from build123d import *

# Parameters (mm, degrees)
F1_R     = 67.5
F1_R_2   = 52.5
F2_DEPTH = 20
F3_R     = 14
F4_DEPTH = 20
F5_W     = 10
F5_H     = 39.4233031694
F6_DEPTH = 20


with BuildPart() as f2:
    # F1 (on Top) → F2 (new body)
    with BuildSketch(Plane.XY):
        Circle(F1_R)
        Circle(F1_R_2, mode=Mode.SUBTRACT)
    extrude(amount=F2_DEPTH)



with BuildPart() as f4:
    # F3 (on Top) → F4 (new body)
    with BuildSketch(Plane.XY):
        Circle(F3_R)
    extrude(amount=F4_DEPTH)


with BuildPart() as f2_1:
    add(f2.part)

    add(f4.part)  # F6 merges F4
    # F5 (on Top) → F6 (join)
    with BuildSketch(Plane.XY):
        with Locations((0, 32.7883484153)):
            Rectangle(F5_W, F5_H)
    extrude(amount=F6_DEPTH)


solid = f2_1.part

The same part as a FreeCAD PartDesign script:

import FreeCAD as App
import Part
import Sketcher
from FreeCAD import Vector


def add_polygon(sketch, points):
    """Adds a closed chain of lines whose ends are joined by coincident constraints."""
    first, n = sketch.GeometryCount, len(points)
    for a, b in zip(points, points[1:] + points[:1]):
        sketch.addGeometry(Part.LineSegment(App.Vector(*a, 0), App.Vector(*b, 0)), False)
    for i in range(n):
        sketch.addConstraint(Sketcher.Constraint("Coincident", first + i, 2, first + (i + 1) % n, 1))

doc = App.newDocument("Part")
body = doc.addObject("PartDesign::Body", "Body")

sketch1 = body.newObject("Sketcher::SketchObject", "Sketch")
sketch1.AttachmentSupport = (doc.getObject("XY_Plane"), [""])
sketch1.MapMode = "FlatFace"
sketch1.addGeometry([
    Part.Circle(Vector(0, 0, 0), Vector(0, 0, 1), 68),
    Part.Circle(Vector(0, 0, 0), Vector(0, 0, 1), 52),
], False)
sketch1.addConstraint([
    Sketcher.Constraint("Coincident", 0, 3, -1, 1),
    Sketcher.Constraint("Coincident", 1, 3, -1, 1),
    Sketcher.Constraint("Diameter", 0, 135.0),
    Sketcher.Constraint("Diameter", 1, 105.0),
])
pad1 = body.newObject("PartDesign::Pad", "Pad")
pad1.Profile = sketch1
pad1.Length = 20
body2 = doc.addObject("PartDesign::Body", "Body001")

sketch2 = body2.newObject("Sketcher::SketchObject", "Sketch001")
sketch2.AttachmentSupport = (doc.getObject("XY_Plane001"), [""])
sketch2.MapMode = "FlatFace"
sketch2.addGeometry(Part.Circle(Vector(0, 0, 0), Vector(0, 0, 1), 14), False)
sketch2.addConstraint([
    Sketcher.Constraint("Coincident", 0, 3, -1, 1),
    Sketcher.Constraint("Diameter", 0, 28.0),
])
pad2 = body2.newObject("PartDesign::Pad", "Pad001")
pad2.Profile = sketch2
pad2.Length = 20
body.AllowCompound = True
doc.recompute()

boolean = body.newObject("PartDesign::Boolean", "Boolean")
boolean.Type = "Fuse"
boolean.addObjects([body2])

sketch3 = body.newObject("Sketcher::SketchObject", "Sketch002")
sketch3.AttachmentSupport = (doc.getObject("XY_Plane"), [""])
sketch3.MapMode = "FlatFace"
add_polygon(sketch3, [(-5, 52), (-5, 13), (5, 13), (5, 52)])
sketch3.addConstraint([
    Sketcher.Constraint("Vertical", 0),
    Sketcher.Constraint("Horizontal", 1),
    Sketcher.Constraint("Vertical", 2),
    Sketcher.Constraint("Horizontal", 3),
    Sketcher.Constraint("DistanceX", 1, 1, 1, 2, 10.0),
    Sketcher.Constraint("DistanceX", 0, 2, -1, 1, 5.0),
    Sketcher.Constraint("DistanceY", -1, 1, 2, 2, 52.5),
    Sketcher.Constraint("DistanceY", 0, 2, 0, 1, 39.423303),
])
pad3 = body.newObject("PartDesign::Pad", "Pad002")
pad3.Profile = sketch3
pad3.Length = 20

doc.recompute()
